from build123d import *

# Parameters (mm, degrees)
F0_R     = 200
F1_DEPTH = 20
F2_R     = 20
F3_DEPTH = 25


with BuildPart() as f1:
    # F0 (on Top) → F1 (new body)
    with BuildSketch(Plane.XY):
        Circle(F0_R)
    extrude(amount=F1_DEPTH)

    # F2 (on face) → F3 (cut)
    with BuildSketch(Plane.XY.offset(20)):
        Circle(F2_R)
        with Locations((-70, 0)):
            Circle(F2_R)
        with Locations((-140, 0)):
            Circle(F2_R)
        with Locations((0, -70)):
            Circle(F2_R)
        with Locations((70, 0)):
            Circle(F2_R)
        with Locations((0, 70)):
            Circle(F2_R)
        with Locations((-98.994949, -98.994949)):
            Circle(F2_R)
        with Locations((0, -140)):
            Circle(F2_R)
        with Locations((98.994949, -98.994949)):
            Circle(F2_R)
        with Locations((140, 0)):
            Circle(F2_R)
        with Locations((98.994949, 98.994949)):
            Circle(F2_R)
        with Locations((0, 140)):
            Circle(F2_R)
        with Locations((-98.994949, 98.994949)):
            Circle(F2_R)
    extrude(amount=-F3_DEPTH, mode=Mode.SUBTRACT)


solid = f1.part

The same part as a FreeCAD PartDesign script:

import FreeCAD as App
import Part
import Sketcher

V = App.Vector
Q = App.Units.Quantity

doc = App.newDocument("Part")
params = doc.addObject("Spreadsheet::Sheet", "Params")
for row, (alias, value) in enumerate([
    ("sketch1_diameter", "400 mm"),
    ("pad1_length", "20 mm"),
    ("sketch2_diameter", "40 mm"),
    ("pocket1_length", "25 mm"),
], start=1):
    params.set(f"A{row}", alias)
    params.set(f"B{row}", "=" + value)
    params.setAlias(f"B{row}", alias)

body = doc.addObject("PartDesign::Body", "Body")

sketch1 = doc.addObject("Sketcher::SketchObject", "Sketch")
body.addObject(sketch1)
sketch1.AttachmentSupport = (doc.XY_Plane, [""])
sketch1.MapMode = "FlatFace"
sketch1.addGeometry(Part.Circle(V(0, 0, 0), V(0, 0, 1), 200), False)
sketch1.addConstraint(Sketcher.Constraint("Coincident", 0, 3, -1, 1))
sketch1.addConstraint(Sketcher.Constraint("Diameter", 0, Q("400 mm")))
sketch1.setExpression("Constraints[1]", "Params.sketch1_diameter")
pad1 = doc.addObject("PartDesign::Pad", "Pad")
body.addObject(pad1)
pad1.Profile = sketch1
pad1.setExpression("Length", "Params.pad1_length")

sketch2 = doc.addObject("Sketcher::SketchObject", "Sketch001")
body.addObject(sketch2)
sketch2.AttachmentSupport = (doc.XY_Plane, [""])
sketch2.MapMode = "FlatFace"
sketch2.AttachmentOffset = App.Placement(V(0, 0, 20), App.Rotation())
sketch2.addGeometry(Part.Circle(V(0, 0, 0), V(0, 0, 1), 20), False)
sketch2.addGeometry(Part.Circle(V(-70, 0, 0), V(0, 0, 1), 20), False)
sketch2.addGeometry(Part.Circle(V(-140, 0, 0), V(0, 0, 1), 20), False)
sketch2.addGeometry(Part.Circle(V(0, -70, 0), V(0, 0, 1), 20), False)
sketch2.addGeometry(Part.Circle(V(70, 0, 0), V(0, 0, 1), 20), False)
sketch2.addGeometry(Part.Circle(V(0, 70, 0), V(0, 0, 1), 20), False)
sketch2.addGeometry(Part.Circle(V(-99, -99, 0), V(0, 0, 1), 20), False)
sketch2.addGeometry(Part.Circle(V(0, -140, 0), V(0, 0, 1), 20), False)
sketch2.addGeometry(Part.Circle(V(99, -99, 0), V(0, 0, 1), 20), False)
sketch2.addGeometry(Part.Circle(V(140, 0, 0), V(0, 0, 1), 20), False)
sketch2.addGeometry(Part.Circle(V(99, 99, 0), V(0, 0, 1), 20), False)
sketch2.addGeometry(Part.Circle(V(0, 140, 0), V(0, 0, 1), 20), False)
sketch2.addGeometry(Part.Circle(V(-99, 99, 0), V(0, 0, 1), 20), False)
sketch2.addConstraint(Sketcher.Constraint("Coincident", 0, 3, -1, 1))
sketch2.addConstraint(Sketcher.Constraint("Equal", 0, 1))
sketch2.addConstraint(Sketcher.Constraint("Equal", 1, 2))
sketch2.addConstraint(Sketcher.Constraint("Equal", 2, 3))
sketch2.addConstraint(Sketcher.Constraint("Equal", 3, 4))
sketch2.addConstraint(Sketcher.Constraint("Equal", 4, 5))
sketch2.addConstraint(Sketcher.Constraint("Equal", 5, 6))
sketch2.addConstraint(Sketcher.Constraint("Equal", 6, 7))
sketch2.addConstraint(Sketcher.Constraint("Equal", 7, 8))
sketch2.addConstraint(Sketcher.Constraint("Equal", 8, 9))
sketch2.addConstraint(Sketcher.Constraint("Equal", 9, 10))
sketch2.addConstraint(Sketcher.Constraint("Equal", 10, 11))
sketch2.addConstraint(Sketcher.Constraint("Equal", 11, 12))
sketch2.addConstraint(Sketcher.Constraint("Symmetric", 1, 3, 4, 3, -1, 1))
sketch2.addConstraint(Sketcher.Constraint("Symmetric", 3, 3, 5, 3, -1, 1))
sketch2.addConstraint(Sketcher.Constraint("Symmetric", 2, 3, 9, 3, -1, 1))
sketch2.addConstraint(Sketcher.Constraint("Symmetric", 6, 3, 10, 3, -1, 1))
sketch2.addConstraint(Sketcher.Constraint("Symmetric", 7, 3, 11, 3, -1, 1))
sketch2.addConstraint(Sketcher.Constraint("Symmetric", 8, 3, 12, 3, -1, 1))
sketch2.addConstraint(Sketcher.Constraint("Symmetric", 6, 3, 8, 3, -2))
sketch2.addConstraint(Sketcher.Constraint("PointOnObject", 1, 3, -1))
sketch2.addConstraint(Sketcher.Constraint("PointOnObject", 2, 3, -1))
sketch2.addConstraint(Sketcher.Constraint("PointOnObject", 3, 3, -2))
sketch2.addConstraint(Sketcher.Constraint("PointOnObject", 7, 3, -2))
sketch2.addConstraint(Sketcher.Constraint("Diameter", 0, Q("40 mm")))
sketch2.addConstraint(Sketcher.Constraint("DistanceX", 1, 3, -1, 1, Q("70 mm")))
sketch2.addConstraint(Sketcher.Constraint("DistanceX", 2, 3, -1, 1, Q("140 mm")))
sketch2.addConstraint(Sketcher.Constraint("DistanceY", 3, 3, -1, 1, Q("70 mm")))
sketch2.addConstraint(Sketcher.Constraint("DistanceY", 7, 3, -1, 1, Q("140 mm")))
sketch2.addConstraint(Sketcher.Constraint("DistanceX", 6, 3, -1, 1, Q("98.994949 mm")))
sketch2.addConstraint(Sketcher.Constraint("DistanceY", 6, 3, -1, 1, Q("98.994949 mm")))
sketch2.setExpression("Constraints[24]", "Params.sketch2_diameter")
pocket1 = doc.addObject("PartDesign::Pocket", "Pocket")
body.addObject(pocket1)
pocket1.Profile = sketch2
pocket1.setExpression("Length", "Params.pocket1_length")

doc.recompute()
